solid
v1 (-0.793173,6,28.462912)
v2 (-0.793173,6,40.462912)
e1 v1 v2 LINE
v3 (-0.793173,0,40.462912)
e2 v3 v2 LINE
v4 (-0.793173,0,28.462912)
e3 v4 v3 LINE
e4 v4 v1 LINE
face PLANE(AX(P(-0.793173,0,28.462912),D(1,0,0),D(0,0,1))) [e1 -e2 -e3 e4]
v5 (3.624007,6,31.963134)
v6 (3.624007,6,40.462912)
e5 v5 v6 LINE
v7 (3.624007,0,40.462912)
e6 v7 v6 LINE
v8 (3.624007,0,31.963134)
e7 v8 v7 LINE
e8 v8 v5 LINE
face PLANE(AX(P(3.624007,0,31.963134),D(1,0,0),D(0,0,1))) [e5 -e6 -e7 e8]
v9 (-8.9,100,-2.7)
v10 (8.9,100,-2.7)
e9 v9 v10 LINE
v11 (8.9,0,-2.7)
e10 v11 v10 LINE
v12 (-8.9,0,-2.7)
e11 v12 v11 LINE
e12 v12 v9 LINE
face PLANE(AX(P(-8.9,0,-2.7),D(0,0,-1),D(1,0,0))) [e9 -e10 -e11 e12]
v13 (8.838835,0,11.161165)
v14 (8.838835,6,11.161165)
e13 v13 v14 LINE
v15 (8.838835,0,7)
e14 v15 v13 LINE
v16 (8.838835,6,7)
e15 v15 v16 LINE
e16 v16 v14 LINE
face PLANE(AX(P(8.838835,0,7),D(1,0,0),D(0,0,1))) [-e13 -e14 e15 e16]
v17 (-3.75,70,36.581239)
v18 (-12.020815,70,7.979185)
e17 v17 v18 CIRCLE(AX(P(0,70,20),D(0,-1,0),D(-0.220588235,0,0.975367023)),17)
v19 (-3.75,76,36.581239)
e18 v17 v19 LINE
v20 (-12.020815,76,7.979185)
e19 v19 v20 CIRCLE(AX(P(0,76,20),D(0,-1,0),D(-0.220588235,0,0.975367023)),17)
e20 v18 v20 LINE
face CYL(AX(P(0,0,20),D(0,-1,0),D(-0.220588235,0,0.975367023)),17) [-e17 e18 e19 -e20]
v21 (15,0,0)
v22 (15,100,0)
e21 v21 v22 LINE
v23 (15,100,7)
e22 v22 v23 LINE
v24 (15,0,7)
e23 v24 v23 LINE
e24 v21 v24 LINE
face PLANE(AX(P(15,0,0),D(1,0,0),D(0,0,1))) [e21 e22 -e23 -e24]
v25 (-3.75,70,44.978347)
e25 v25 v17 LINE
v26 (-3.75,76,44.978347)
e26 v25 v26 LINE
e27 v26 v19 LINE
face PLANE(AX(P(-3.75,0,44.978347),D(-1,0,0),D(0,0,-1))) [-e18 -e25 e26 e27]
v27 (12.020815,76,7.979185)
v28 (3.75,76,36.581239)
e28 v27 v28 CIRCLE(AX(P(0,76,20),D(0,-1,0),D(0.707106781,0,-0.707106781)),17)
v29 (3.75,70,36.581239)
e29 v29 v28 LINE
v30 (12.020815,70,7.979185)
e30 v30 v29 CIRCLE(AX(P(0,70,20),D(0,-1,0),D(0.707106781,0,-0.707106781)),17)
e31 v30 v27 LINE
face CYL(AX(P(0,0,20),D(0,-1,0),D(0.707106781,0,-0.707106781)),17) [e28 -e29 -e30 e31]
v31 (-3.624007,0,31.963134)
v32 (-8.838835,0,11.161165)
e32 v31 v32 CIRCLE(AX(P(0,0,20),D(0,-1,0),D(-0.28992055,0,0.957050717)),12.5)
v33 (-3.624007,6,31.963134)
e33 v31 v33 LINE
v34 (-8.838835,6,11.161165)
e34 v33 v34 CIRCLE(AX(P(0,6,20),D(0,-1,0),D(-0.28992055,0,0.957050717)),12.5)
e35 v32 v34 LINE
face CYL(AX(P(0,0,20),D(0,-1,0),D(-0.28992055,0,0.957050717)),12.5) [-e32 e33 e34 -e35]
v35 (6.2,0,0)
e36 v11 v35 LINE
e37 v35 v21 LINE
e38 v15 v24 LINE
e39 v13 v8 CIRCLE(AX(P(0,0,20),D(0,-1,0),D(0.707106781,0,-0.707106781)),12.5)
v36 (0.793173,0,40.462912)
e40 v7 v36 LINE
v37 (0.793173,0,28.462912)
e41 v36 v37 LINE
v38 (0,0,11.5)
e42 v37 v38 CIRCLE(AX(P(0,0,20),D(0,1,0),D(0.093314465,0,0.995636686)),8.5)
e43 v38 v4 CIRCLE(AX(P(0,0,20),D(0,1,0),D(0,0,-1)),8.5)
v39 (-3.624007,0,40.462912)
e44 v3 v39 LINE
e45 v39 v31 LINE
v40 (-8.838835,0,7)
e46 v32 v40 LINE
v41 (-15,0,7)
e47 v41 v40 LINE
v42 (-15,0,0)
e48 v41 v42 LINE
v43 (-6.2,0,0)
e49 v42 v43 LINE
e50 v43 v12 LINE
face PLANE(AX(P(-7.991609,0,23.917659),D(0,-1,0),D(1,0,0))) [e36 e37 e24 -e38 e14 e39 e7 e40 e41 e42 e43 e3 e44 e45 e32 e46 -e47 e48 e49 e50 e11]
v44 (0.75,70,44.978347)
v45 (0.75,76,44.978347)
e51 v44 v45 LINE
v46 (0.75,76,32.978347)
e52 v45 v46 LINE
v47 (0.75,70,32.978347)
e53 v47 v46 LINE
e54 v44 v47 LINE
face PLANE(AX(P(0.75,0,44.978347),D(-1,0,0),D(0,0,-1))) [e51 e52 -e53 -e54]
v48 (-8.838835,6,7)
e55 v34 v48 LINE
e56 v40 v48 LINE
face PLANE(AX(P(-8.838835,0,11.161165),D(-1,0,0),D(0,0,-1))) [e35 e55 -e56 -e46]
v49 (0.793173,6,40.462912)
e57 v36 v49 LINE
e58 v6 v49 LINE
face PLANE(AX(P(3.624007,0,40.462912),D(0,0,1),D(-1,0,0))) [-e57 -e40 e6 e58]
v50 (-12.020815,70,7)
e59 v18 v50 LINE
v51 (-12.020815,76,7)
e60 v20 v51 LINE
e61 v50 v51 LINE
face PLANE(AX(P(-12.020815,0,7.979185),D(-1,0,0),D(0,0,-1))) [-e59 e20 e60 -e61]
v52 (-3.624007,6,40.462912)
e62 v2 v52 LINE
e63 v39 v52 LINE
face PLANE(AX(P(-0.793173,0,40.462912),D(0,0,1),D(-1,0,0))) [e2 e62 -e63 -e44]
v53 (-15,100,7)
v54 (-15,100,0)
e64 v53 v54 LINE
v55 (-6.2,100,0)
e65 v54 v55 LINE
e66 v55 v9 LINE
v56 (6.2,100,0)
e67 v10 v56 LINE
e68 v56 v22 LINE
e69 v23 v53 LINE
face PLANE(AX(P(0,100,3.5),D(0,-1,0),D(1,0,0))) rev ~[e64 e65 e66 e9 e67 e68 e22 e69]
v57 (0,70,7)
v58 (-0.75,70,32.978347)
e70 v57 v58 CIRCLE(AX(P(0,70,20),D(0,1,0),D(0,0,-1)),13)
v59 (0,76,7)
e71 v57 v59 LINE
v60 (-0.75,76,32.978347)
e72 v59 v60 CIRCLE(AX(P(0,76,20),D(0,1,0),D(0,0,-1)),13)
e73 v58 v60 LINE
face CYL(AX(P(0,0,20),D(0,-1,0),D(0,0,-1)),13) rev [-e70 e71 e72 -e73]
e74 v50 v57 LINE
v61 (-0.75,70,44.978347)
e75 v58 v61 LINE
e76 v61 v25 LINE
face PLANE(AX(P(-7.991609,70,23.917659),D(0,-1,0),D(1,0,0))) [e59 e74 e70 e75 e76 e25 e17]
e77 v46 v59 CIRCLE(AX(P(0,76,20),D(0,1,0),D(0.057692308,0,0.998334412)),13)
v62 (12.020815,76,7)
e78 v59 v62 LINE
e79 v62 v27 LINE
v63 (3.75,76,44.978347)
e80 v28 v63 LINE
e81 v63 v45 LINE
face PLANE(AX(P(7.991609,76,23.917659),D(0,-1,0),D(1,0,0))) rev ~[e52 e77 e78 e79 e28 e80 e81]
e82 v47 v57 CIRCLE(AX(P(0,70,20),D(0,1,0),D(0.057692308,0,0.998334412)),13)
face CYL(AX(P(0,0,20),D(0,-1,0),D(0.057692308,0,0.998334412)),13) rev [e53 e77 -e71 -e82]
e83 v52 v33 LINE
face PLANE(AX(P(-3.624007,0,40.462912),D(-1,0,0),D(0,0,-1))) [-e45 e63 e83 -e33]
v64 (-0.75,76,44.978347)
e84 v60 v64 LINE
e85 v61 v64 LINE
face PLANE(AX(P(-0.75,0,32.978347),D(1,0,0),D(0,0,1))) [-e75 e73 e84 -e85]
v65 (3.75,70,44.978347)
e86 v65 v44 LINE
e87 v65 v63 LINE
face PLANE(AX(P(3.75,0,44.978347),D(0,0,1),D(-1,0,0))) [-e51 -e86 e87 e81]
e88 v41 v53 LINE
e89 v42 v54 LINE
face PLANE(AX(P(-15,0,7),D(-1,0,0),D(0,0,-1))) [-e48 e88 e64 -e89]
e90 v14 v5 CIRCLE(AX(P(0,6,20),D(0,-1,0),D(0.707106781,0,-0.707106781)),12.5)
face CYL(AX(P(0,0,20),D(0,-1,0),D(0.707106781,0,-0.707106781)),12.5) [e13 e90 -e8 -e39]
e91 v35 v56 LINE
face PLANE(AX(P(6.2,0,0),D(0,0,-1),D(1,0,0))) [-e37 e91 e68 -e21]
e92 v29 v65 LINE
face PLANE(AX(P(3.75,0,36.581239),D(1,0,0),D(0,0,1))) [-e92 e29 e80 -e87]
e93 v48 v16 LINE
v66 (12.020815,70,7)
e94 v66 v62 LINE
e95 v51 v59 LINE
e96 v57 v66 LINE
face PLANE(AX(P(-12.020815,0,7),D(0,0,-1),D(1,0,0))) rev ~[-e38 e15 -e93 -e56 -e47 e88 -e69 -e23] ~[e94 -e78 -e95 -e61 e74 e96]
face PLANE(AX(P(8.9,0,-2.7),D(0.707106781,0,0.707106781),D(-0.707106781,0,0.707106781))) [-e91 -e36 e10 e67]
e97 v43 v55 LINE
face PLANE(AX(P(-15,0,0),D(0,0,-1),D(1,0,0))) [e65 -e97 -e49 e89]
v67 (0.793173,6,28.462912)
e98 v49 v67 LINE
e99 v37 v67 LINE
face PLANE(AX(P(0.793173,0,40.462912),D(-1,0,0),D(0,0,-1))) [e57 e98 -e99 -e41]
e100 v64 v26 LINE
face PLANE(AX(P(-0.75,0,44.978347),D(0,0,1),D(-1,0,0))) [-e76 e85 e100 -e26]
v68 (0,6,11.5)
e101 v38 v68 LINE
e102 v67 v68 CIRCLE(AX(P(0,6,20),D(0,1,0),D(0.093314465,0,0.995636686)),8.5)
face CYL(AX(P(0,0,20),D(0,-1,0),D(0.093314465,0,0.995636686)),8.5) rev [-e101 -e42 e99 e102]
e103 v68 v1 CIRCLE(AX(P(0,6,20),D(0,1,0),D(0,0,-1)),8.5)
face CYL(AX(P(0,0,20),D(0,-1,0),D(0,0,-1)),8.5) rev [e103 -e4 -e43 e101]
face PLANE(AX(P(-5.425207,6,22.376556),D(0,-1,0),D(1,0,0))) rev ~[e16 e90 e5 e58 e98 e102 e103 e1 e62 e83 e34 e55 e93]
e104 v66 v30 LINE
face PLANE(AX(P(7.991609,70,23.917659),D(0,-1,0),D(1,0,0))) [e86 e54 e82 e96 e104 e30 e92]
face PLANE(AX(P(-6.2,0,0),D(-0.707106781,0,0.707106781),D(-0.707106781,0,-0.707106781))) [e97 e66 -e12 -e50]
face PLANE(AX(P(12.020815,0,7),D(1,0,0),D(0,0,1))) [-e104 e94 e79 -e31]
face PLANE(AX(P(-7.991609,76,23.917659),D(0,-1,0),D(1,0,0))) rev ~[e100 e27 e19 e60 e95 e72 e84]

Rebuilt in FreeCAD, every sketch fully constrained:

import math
import FreeCAD as App
import Part
import Sketcher
from FreeCAD import Vector

doc = App.newDocument("Part")
body = doc.addObject("PartDesign::Body", "Body")

# Sketch on XZ plane
sketch1 = body.newObject("Sketcher::SketchObject", "Sketch")
sketch1.AttachmentSupport = (doc.getObject("XZ_Plane"), [""])
sketch1.MapMode = "FlatFace"
sketch1.addGeometry([
    Part.LineSegment(Vector(15, 0, 0), Vector(15, 7, 0)),  # 0
    Part.LineSegment(Vector(15, 7, 0), Vector(-15, 7, 0)),  # 1
    Part.LineSegment(Vector(-15, 7, 0), Vector(-15, 0, 0)),  # 2
    Part.LineSegment(Vector(-15, 0, 0), Vector(-6.2, 0, 0)),  # 3
    Part.LineSegment(Vector(-6.2, 0, 0), Vector(-8.9, -2.7, 0)),  # 4
    Part.LineSegment(Vector(-8.9, -2.7, 0), Vector(8.9, -2.7, 0)),  # 5
    Part.LineSegment(Vector(8.9, -2.7, 0), Vector(6.2, 0, 0)),  # 6
    Part.LineSegment(Vector(6.2, 0, 0), Vector(15, 0, 0)),  # 7
], False)
sketch1.addConstraint([
    Sketcher.Constraint("Coincident", 0, 2, 1, 1),
    Sketcher.Constraint("Coincident", 1, 2, 2, 1),
    Sketcher.Constraint("Coincident", 2, 2, 3, 1),
    Sketcher.Constraint("Coincident", 3, 2, 4, 1),
    Sketcher.Constraint("Coincident", 4, 2, 5, 1),
    Sketcher.Constraint("Coincident", 5, 2, 6, 1),
    Sketcher.Constraint("Coincident", 6, 2, 7, 1),
    Sketcher.Constraint("Coincident", 7, 2, 0, 1),
    Sketcher.Constraint("Vertical", 0),
    Sketcher.Constraint("Horizontal", 1),
    Sketcher.Constraint("Vertical", 2),
    Sketcher.Constraint("Horizontal", 3),
    Sketcher.Constraint("Horizontal", 5),
    Sketcher.Constraint("Horizontal", 7),
    Sketcher.Constraint("Symmetric", 3, 2, 6, 2, -1, 1),
    Sketcher.Constraint("Symmetric", 2, 2, 7, 2, -2),
    Sketcher.Constraint("Perpendicular", 4, 6),
    Sketcher.Constraint("Equal", 4, 6),
    Sketcher.Constraint("DistanceX", 1, 2, 1, 1, 30.0),
    Sketcher.Constraint("DistanceY", 0, 1, 0, 2, 7.0),
    Sketcher.Constraint("DistanceX", 3, 1, 3, 2, 8.8),
    Sketcher.Constraint("DistanceX", 5, 1, 5, 2, 17.8),
])
pad1 = body.newObject("PartDesign::Pad", "Pad")
pad1.Profile = sketch1
pad1.Length = 100
pad1.Reversed = True

# Sketch on XZ plane
sketch2 = body.newObject("Sketcher::SketchObject", "Sketch001")
sketch2.AttachmentSupport = (doc.getObject("XZ_Plane"), [""])
sketch2.MapMode = "FlatFace"
sketch2.addGeometry([
    Part.ArcOfCircle(Part.Circle(Vector(0, 20, 0), Vector(0, 0, 1), 13), math.radians(93.307362), math.radians(270)),  # 0
    Part.LineSegment(Vector(-0.75, 32.978347, 0), Vector(-0.75, 44.978347, 0)),  # 1
    Part.LineSegment(Vector(-0.75, 44.978347, 0), Vector(-3.75, 44.978347, 0)),  # 2
    Part.LineSegment(Vector(-3.75, 44.978347, 0), Vector(-3.75, 36.581239, 0)),  # 3
    Part.ArcOfCircle(Part.Circle(Vector(0, 20, 0), Vector(0, 0, 1), 17), math.radians(102.743585), math.radians(225)),  # 4
    Part.LineSegment(Vector(-12.020815, 7.979185, 0), Vector(-12.020815, 7, 0)),  # 5
    Part.LineSegment(Vector(-12.020815, 7, 0), Vector(0, 7, 0)),  # 6
    Part.ArcOfCircle(Part.Circle(Vector(0, 20, 0), Vector(0, 0, 1), 13), math.radians(-90), math.radians(86.692638)),  # 7
    Part.LineSegment(Vector(0, 7, 0), Vector(12.020815, 7, 0)),  # 8
    Part.LineSegment(Vector(12.020815, 7, 0), Vector(12.020815, 7.979185, 0)),  # 9
    Part.ArcOfCircle(Part.Circle(Vector(0, 20, 0), Vector(0, 0, 1), 17), math.radians(-45), math.radians(77.256415)),  # 10
    Part.LineSegment(Vector(3.75, 36.581239, 0), Vector(3.75, 44.978347, 0)),  # 11
    Part.LineSegment(Vector(3.75, 44.978347, 0), Vector(0.75, 44.978347, 0)),  # 12
    Part.LineSegment(Vector(0.75, 44.978347, 0), Vector(0.75, 32.978347, 0)),  # 13
], False)
sketch2.addConstraint([
    Sketcher.Constraint("Coincident", 0, 1, 1, 1),
    Sketcher.Constraint("Coincident", 1, 2, 2, 1),
    Sketcher.Constraint("Coincident", 2, 2, 3, 1),
    Sketcher.Constraint("Coincident", 3, 2, 4, 1),
    Sketcher.Constraint("Coincident", 4, 2, 5, 1),
    Sketcher.Constraint("Coincident", 5, 2, 6, 1),
    Sketcher.Constraint("Tangent", 6, 2, 0, 2),
    Sketcher.Constraint("Tangent", 7, 1, 8, 1),
    Sketcher.Constraint("Coincident", 8, 2, 9, 1),
    Sketcher.Constraint("Coincident", 9, 2, 10, 1),
    Sketcher.Constraint("Coincident", 10, 2, 11, 1),
    Sketcher.Constraint("Coincident", 11, 2, 12, 1),
    Sketcher.Constraint("Coincident", 12, 2, 13, 1),
    Sketcher.Constraint("Coincident", 13, 2, 7, 2),
    Sketcher.Constraint("Vertical", 1),
    Sketcher.Constraint("Horizontal", 2),
    Sketcher.Constraint("Vertical", 3),
    Sketcher.Constraint("Vertical", 5),
    Sketcher.Constraint("Horizontal", 6),
    Sketcher.Constraint("Horizontal", 8),
    Sketcher.Constraint("Vertical", 9),
    Sketcher.Constraint("Vertical", 11),
    Sketcher.Constraint("Horizontal", 12),
    Sketcher.Constraint("Vertical", 13),
    Sketcher.Constraint("Coincident", 4, 3, 0, 3),
    Sketcher.Constraint("Coincident", 7, 3, 0, 3),
    Sketcher.Constraint("Coincident", 10, 3, 0, 3),
    Sketcher.Constraint("Equal", 0, 7),
    Sketcher.Constraint("Equal", 4, 10),
    Sketcher.Constraint("Symmetric", 4, 2, 9, 2, -2),
    Sketcher.Constraint("Symmetric", 2, 2, 11, 2, -2),
    Sketcher.Constraint("Horizontal", 0, 1, 13, 2),
    Sketcher.Constraint("Radius", 0, 13.0),
    Sketcher.Constraint("Radius", 4, 17.0),
    Sketcher.Constraint("DistanceX", 2, 2, 2, 1, 3.0),
    Sketcher.Constraint("DistanceY", 1, 1, 1, 2, 12.0),
    Sketcher.Constraint("DistanceY", -1, 1, 0, 3, 20.0),
    Sketcher.Constraint("DistanceX", 0, 1, 10, 2, 4.5),
    Sketcher.Constraint("DistanceX", 6, 1, 6, 2, 12.020815),
])
pad2 = body.newObject("PartDesign::Pad", "Pad001")
pad2.Profile = sketch2
pad2.Length = 76
pad2.Reversed = True

# Sketch on XZ plane
sketch3 = body.newObject("Sketcher::SketchObject", "Sketch002")
sketch3.AttachmentSupport = (doc.getObject("XZ_Plane"), [""])
sketch3.MapMode = "FlatFace"
sketch3.addGeometry([
    Part.ArcOfCircle(Part.Circle(Vector(0, 20, 0), Vector(0, 0, 1), 13), math.radians(93.307362), math.radians(270)),  # 0
    Part.LineSegment(Vector(-0.75, 32.978347, 0), Vector(-0.75, 44.978347, 0)),  # 1
    Part.LineSegment(Vector(-0.75, 44.978347, 0), Vector(-3.75, 44.978347, 0)),  # 2
    Part.LineSegment(Vector(-3.75, 44.978347, 0), Vector(-3.75, 36.581239, 0)),  # 3
    Part.ArcOfCircle(Part.Circle(Vector(0, 20, 0), Vector(0, 0, 1), 17), math.radians(102.743585), math.radians(225)),  # 4
    Part.LineSegment(Vector(-12.020815, 7.979185, 0), Vector(-12.020815, 7, 0)),  # 5
    Part.LineSegment(Vector(-12.020815, 7, 0), Vector(0, 7, 0)),  # 6
    Part.ArcOfCircle(Part.Circle(Vector(0, 20, 0), Vector(0, 0, 1), 13), math.radians(-90), math.radians(86.692638)),  # 7
    Part.LineSegment(Vector(0, 7, 0), Vector(12.020815, 7, 0)),  # 8
    Part.LineSegment(Vector(12.020815, 7, 0), Vector(12.020815, 7.979185, 0)),  # 9
    Part.ArcOfCircle(Part.Circle(Vector(0, 20, 0), Vector(0, 0, 1), 17), math.radians(-45), math.radians(77.256415)),  # 10
    Part.LineSegment(Vector(3.75, 36.581239, 0), Vector(3.75, 44.978347, 0)),  # 11
    Part.LineSegment(Vector(3.75, 44.978347, 0), Vector(0.75, 44.978347, 0)),  # 12
    Part.LineSegment(Vector(0.75, 44.978347, 0), Vector(0.75, 32.978347, 0)),  # 13
], False)
sketch3.addConstraint([
    Sketcher.Constraint("Coincident", 0, 1, 1, 1),
    Sketcher.Constraint("Coincident", 1, 2, 2, 1),
    Sketcher.Constraint("Coincident", 2, 2, 3, 1),
    Sketcher.Constraint("Coincident", 3, 2, 4, 1),
    Sketcher.Constraint("Coincident", 4, 2, 5, 1),
    Sketcher.Constraint("Coincident", 5, 2, 6, 1),
    Sketcher.Constraint("Tangent", 6, 2, 0, 2),
    Sketcher.Constraint("Tangent", 7, 1, 8, 1),
    Sketcher.Constraint("Coincident", 8, 2, 9, 1),
    Sketcher.Constraint("Coincident", 9, 2, 10, 1),
    Sketcher.Constraint("Coincident", 10, 2, 11, 1),
    Sketcher.Constraint("Coincident", 11, 2, 12, 1),
    Sketcher.Constraint("Coincident", 12, 2, 13, 1),
    Sketcher.Constraint("Coincident", 13, 2, 7, 2),
    Sketcher.Constraint("Vertical", 1),
    Sketcher.Constraint("Horizontal", 2),
    Sketcher.Constraint("Vertical", 3),
    Sketcher.Constraint("Vertical", 5),
    Sketcher.Constraint("Horizontal", 6),
    Sketcher.Constraint("Horizontal", 8),
    Sketcher.Constraint("Vertical", 9),
    Sketcher.Constraint("Vertical", 11),
    Sketcher.Constraint("Horizontal", 12),
    Sketcher.Constraint("Vertical", 13),
    Sketcher.Constraint("Coincident", 4, 3, 0, 3),
    Sketcher.Constraint("Coincident", 7, 3, 0, 3),
    Sketcher.Constraint("Coincident", 10, 3, 0, 3),
    Sketcher.Constraint("Equal", 0, 7),
    Sketcher.Constraint("Equal", 4, 10),
    Sketcher.Constraint("Symmetric", 4, 2, 9, 2, -2),
    Sketcher.Constraint("Symmetric", 2, 2, 11, 2, -2),
    Sketcher.Constraint("Horizontal", 0, 1, 13, 2),
    Sketcher.Constraint("Radius", 0, 13.0),
    Sketcher.Constraint("Radius", 4, 17.0),
    Sketcher.Constraint("DistanceX", 2, 2, 2, 1, 3.0),
    Sketcher.Constraint("DistanceY", 1, 1, 1, 2, 12.0),
    Sketcher.Constraint("DistanceY", -1, 1, 0, 3, 20.0),
    Sketcher.Constraint("DistanceX", 0, 1, 10, 2, 4.5),
    Sketcher.Constraint("DistanceX", 6, 1, 6, 2, 12.020815),
])
pocket1 = body.newObject("PartDesign::Pocket", "Pocket")
pocket1.Profile = sketch3
pocket1.Length = 70

# Sketch on XZ plane
sketch4 = body.newObject("Sketcher::SketchObject", "Sketch003")
sketch4.AttachmentSupport = (doc.getObject("XZ_Plane"), [""])
sketch4.MapMode = "FlatFace"
sketch4.addGeometry([
    Part.LineSegment(Vector(-8.838835, 11.161165, 0), Vector(-8.838835, 7, 0)),  # 0
    Part.LineSegment(Vector(-8.838835, 7, 0), Vector(8.838835, 7, 0)),  # 1
    Part.LineSegment(Vector(8.838835, 7, 0), Vector(8.838835, 11.161165, 0)),  # 2
    Part.ArcOfCircle(Part.Circle(Vector(0, 20, 0), Vector(0, 0, 1), 12.5), math.radians(-45), math.radians(73.1468)),  # 3
    Part.LineSegment(Vector(3.624007, 31.963134, 0), Vector(3.624007, 40.462912, 0)),  # 4
    Part.LineSegment(Vector(3.624007, 40.462912, 0), Vector(0.793173, 40.462912, 0)),  # 5
    Part.LineSegment(Vector(0.793173, 40.462912, 0), Vector(0.793173, 28.462912, 0)),  # 6
    Part.ArcOfCircle(Part.Circle(Vector(0, 20, 0), Vector(0, 0, 1), 8.5), math.radians(-90), math.radians(84.645685)),  # 7
    Part.ArcOfCircle(Part.Circle(Vector(0, 20, 0), Vector(0, 0, 1), 8.5), math.radians(95.354315), math.radians(270)),  # 8
    Part.LineSegment(Vector(-0.793173, 28.462912, 0), Vector(-0.793173, 40.462912, 0)),  # 9
    Part.LineSegment(Vector(-0.793173, 40.462912, 0), Vector(-3.624007, 40.462912, 0)),  # 10
    Part.LineSegment(Vector(-3.624007, 40.462912, 0), Vector(-3.624007, 31.963134, 0)),  # 11
    Part.ArcOfCircle(Part.Circle(Vector(0, 20, 0), Vector(0, 0, 1), 12.5), math.radians(106.8532), math.radians(225)),  # 12
], False)
sketch4.addConstraint([
    Sketcher.Constraint("Coincident", 0, 2, 1, 1),
    Sketcher.Constraint("Coincident", 1, 2, 2, 1),
    Sketcher.Constraint("Coincident", 2, 2, 3, 1),
    Sketcher.Constraint("Coincident", 3, 2, 4, 1),
    Sketcher.Constraint("Coincident", 4, 2, 5, 1),
    Sketcher.Constraint("Coincident", 5, 2, 6, 1),
    Sketcher.Constraint("Coincident", 6, 2, 7, 2),
    Sketcher.Constraint("Tangent", 7, 1, 8, 2),
    Sketcher.Constraint("Coincident", 8, 1, 9, 1),
    Sketcher.Constraint("Coincident", 9, 2, 10, 1),
    Sketcher.Constraint("Coincident", 10, 2, 11, 1),
    Sketcher.Constraint("Coincident", 11, 2, 12, 1),
    Sketcher.Constraint("Coincident", 12, 2, 0, 1),
    Sketcher.Constraint("Vertical", 0),
    Sketcher.Constraint("Horizontal", 1),
    Sketcher.Constraint("Vertical", 2),
    Sketcher.Constraint("Vertical", 4),
    Sketcher.Constraint("Horizontal", 5),
    Sketcher.Constraint("Vertical", 6),
    Sketcher.Constraint("Vertical", 9),
    Sketcher.Constraint("Horizontal", 10),
    Sketcher.Constraint("Vertical", 11),
    Sketcher.Constraint("Coincident", 7, 3, 3, 3),
    Sketcher.Constraint("Coincident", 12, 3, 3, 3),
    Sketcher.Constraint("Equal", 7, 8),
    Sketcher.Constraint("Equal", 3, 12),
    Sketcher.Constraint("Symmetric", 6, 2, 8, 1, -2),
    Sketcher.Constraint("Symmetric", 4, 2, 10, 2, -2),
    Sketcher.Constraint("PointOnObject", 7, 1, -2),
    Sketcher.Constraint("Horizontal", 2, 2, 12, 2),
    Sketcher.Constraint("Radius", 3, 12.5),
    Sketcher.Constraint("Radius", 7, 8.5),
    Sketcher.Constraint("DistanceY", 6, 2, 6, 1, 12.0),
    Sketcher.Constraint("DistanceY", -1, 1, 3, 3, 20.0),
    Sketcher.Constraint("DistanceY", -1, 1, 0, 2, 7.0),
    Sketcher.Constraint("DistanceX", 1, 1, 1, 2, 17.67767),
    Sketcher.Constraint("DistanceX", 5, 2, 5, 1, 2.830834),
    Sketcher.Constraint("DistanceY", 4, 1, 4, 2, 8.499778),
])
pad3 = body.newObject("PartDesign::Pad", "Pad002")
pad3.Profile = sketch4
pad3.Length = 6
pad3.Reversed = True

# Sketch on YZ plane
sketch5 = body.newObject("Sketcher::SketchObject", "Sketch004")
sketch5.AttachmentSupport = (doc.getObject("YZ_Plane"), [""])
sketch5.MapMode = "FlatFace"
sketch5.addGeometry([
    Part.ArcOfCircle(Part.Circle(Vector(73, 58.57835, 0), Vector(0, 0, 1), 1.5), math.radians(90), math.radians(270)),  # 0
    Part.ArcOfCircle(Part.Circle(Vector(73, 58.57835, 0), Vector(0, 0, 1), 1.5), math.radians(-90), math.radians(0)),  # 1
    Part.ArcOfCircle(Part.Circle(Vector(73, 58.57835, 0), Vector(0, 0, 1), 1.5), math.radians(0), math.radians(90)),  # 2
    Part.ArcOfCircle(Part.Circle(Vector(3, 54.06291, 0), Vector(0, 0, 1), 1.5), math.radians(0), math.radians(90)),  # 3
    Part.ArcOfCircle(Part.Circle(Vector(3, 54.06291, 0), Vector(0, 0, 1), 1.5), math.radians(90), math.radians(360)),  # 4
], False)
sketch5.addConstraint([
    Sketcher.Constraint("Tangent", 0, 2, 1, 1),
    Sketcher.Constraint("Tangent", 1, 2, 2, 1),
    Sketcher.Constraint("Tangent", 2, 2, 0, 1),
    Sketcher.Constraint("Tangent", 3, 1, 4, 2),
    Sketcher.Constraint("Coincident", 4, 1, 3, 2),
    Sketcher.Constraint("Equal", 2, 3),
    Sketcher.Constraint("Horizontal", 2, 3, 1, 2),
    Sketcher.Constraint("Horizontal", 4, 3, 3, 1),
    Sketcher.Constraint("Vertical", 2, 3, 0, 2),
    Sketcher.Constraint("Vertical", 0, 2, 2, 2),
    Sketcher.Constraint("Vertical", 3, 3, 4, 1),
    Sketcher.Constraint("Radius", 0, 1.5),
    Sketcher.Constraint("DistanceX", -1, 1, 0, 3, 73.0),
    Sketcher.Constraint("DistanceX", -1, 1, 3, 3, 3.0),
    Sketcher.Constraint("DistanceY", -1, 1, 0, 3, 58.57835),
    Sketcher.Constraint("DistanceY", -1, 1, 3, 3, 54.06291),
])
pocket2 = body.newObject("PartDesign::Pocket", "Pocket001")
pocket2.Profile = sketch5
pocket2.Length = 25
pocket2.Midplane = True

doc.recompute()
